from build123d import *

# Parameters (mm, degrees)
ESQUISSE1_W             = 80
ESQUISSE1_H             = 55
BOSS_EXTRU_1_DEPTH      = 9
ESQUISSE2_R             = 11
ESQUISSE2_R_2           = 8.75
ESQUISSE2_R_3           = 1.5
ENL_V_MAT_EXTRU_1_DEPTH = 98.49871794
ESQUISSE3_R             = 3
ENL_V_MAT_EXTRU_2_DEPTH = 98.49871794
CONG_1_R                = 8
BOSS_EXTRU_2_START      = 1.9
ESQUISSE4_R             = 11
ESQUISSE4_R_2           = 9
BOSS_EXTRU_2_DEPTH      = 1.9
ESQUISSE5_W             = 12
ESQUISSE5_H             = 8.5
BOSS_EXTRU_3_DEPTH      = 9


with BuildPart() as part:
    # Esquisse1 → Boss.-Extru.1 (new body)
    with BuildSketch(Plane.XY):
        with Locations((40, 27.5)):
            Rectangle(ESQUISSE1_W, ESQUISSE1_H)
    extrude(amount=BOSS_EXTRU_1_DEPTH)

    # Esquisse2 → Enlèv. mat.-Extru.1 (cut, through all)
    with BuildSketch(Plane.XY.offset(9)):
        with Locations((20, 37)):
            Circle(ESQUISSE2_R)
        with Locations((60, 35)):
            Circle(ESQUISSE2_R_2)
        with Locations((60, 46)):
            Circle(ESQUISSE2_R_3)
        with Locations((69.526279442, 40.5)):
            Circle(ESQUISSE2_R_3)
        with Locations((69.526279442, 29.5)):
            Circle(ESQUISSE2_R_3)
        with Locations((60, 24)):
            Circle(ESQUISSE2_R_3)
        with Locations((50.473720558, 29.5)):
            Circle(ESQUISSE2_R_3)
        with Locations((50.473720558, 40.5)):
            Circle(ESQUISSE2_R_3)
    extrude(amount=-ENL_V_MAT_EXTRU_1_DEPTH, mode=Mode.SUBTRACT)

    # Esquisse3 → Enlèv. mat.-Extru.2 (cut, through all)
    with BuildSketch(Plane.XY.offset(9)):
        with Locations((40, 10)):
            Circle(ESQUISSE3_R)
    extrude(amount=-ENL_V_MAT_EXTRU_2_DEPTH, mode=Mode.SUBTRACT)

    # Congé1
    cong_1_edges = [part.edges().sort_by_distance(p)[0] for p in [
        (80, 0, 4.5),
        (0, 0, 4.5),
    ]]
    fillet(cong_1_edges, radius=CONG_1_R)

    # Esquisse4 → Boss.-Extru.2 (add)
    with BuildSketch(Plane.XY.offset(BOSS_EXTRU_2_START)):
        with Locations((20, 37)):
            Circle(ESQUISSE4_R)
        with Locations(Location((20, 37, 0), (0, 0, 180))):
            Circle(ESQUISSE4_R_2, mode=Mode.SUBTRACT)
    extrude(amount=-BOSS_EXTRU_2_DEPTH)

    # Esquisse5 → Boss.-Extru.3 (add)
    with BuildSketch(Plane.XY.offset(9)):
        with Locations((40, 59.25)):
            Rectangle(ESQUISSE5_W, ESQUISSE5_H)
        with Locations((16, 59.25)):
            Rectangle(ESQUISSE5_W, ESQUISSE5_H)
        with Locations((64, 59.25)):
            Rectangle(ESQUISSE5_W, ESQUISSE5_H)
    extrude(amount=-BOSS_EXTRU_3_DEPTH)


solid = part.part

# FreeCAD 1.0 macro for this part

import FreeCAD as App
import Part
import Sketcher
from FreeCAD import Vector


def edges_at(feature, points):
    """Names of the edges that pass closest to the given points."""
    edges = feature.Shape.Edges
    near = lambda p: min(range(len(edges)), key=lambda i: edges[i].distToShape(Part.Vertex(*p))[0])
    return sorted({f"Edge{near(p) + 1}" for p in points})

doc = App.newDocument("Part")
body = doc.addObject("PartDesign::Body", "Body")

# Sketch on XY plane
sketch1 = body.newObject("Sketcher::SketchObject", "Sketch")
sketch1.AttachmentSupport = (doc.getObject("XY_Plane"), [""])
sketch1.MapMode = "FlatFace"
sketch1.addGeometry(Part.LineSegment(Vector(0, 55, 0), Vector(0, 0, 0)), False)
sketch1.addGeometry(Part.LineSegment(Vector(0, 0, 0), Vector(80, 0, 0)), False)
sketch1.addGeometry(Part.LineSegment(Vector(80, 0, 0), Vector(80, 55, 0)), False)
sketch1.addGeometry(Part.LineSegment(Vector(80, 55, 0), Vector(0, 55, 0)), False)
sketch1.addConstraint(Sketcher.Constraint("Coincident", 0, 2, 1, 1))
sketch1.addConstraint(Sketcher.Constraint("Coincident", 1, 2, 2, 1))
sketch1.addConstraint(Sketcher.Constraint("Coincident", 2, 2, 3, 1))
sketch1.addConstraint(Sketcher.Constraint("Coincident", 3, 2, 0, 1))
sketch1.addConstraint(Sketcher.Constraint("Vertical", 0))
sketch1.addConstraint(Sketcher.Constraint("Horizontal", 1))
sketch1.addConstraint(Sketcher.Constraint("Vertical", 2))
sketch1.addConstraint(Sketcher.Constraint("Horizontal", 3))
sketch1.addConstraint(Sketcher.Constraint("Coincident", 0, 2, -1, 1))
sketch1.addConstraint(Sketcher.Constraint("DistanceX", 1, 1, 1, 2, 80.0))
sketch1.addConstraint(Sketcher.Constraint("DistanceY", 0, 2, 0, 1, 55.0))
pad1 = body.newObject("PartDesign::Pad", "Pad")
pad1.Profile = sketch1
pad1.Length = 9

# Sketch on XY plane
sketch2 = body.newObject("Sketcher::SketchObject", "Sketch001")
sketch2.AttachmentSupport = (doc.getObject("XY_Plane"), [""])
sketch2.MapMode = "FlatFace"
sketch2.AttachmentOffset = App.Placement(Vector(0, 0, 9), App.Rotation())
sketch2.addGeometry(Part.Circle(Vector(20, 37, 0), Vector(0, 0, 1), 11), False)
sketch2.addGeometry(Part.Circle(Vector(60, 35, 0), Vector(0, 0, 1), 8.8), False)
sketch2.addGeometry(Part.Circle(Vector(60, 46, 0), Vector(0, 0, 1), 1.5), False)
sketch2.addGeometry(Part.Circle(Vector(69.5, 40.5, 0), Vector(0, 0, 1), 1.5), False)
sketch2.addGeometry(Part.Circle(Vector(69.5, 29.5, 0), Vector(0, 0, 1), 1.5), False)
sketch2.addGeometry(Part.Circle(Vector(60, 24, 0), Vector(0, 0, 1), 1.5), False)
sketch2.addGeometry(Part.Circle(Vector(50.5, 29.5, 0), Vector(0, 0, 1), 1.5), False)
sketch2.addGeometry(Part.Circle(Vector(50.5, 40.5, 0), Vector(0, 0, 1), 1.5), False)
sketch2.addConstraint(Sketcher.Constraint("Equal", 2, 3))
sketch2.addConstraint(Sketcher.Constraint("Equal", 3, 4))
sketch2.addConstraint(Sketcher.Constraint("Equal", 4, 5))
sketch2.addConstraint(Sketcher.Constraint("Equal", 5, 6))
sketch2.addConstraint(Sketcher.Constraint("Equal", 6, 7))
sketch2.addConstraint(Sketcher.Constraint("Horizontal", 4, 3, 6, 3))
sketch2.addConstraint(Sketcher.Constraint("Horizontal", 3, 3, 7, 3))
sketch2.addConstraint(Sketcher.Constraint("Vertical", 1, 3, 2, 3))
sketch2.addConstraint(Sketcher.Constraint("Vertical", 3, 3, 4, 3))
sketch2.addConstraint(Sketcher.Constraint("Vertical", 2, 3, 5, 3))
sketch2.addConstraint(Sketcher.Constraint("Vertical", 6, 3, 7, 3))
sketch2.addConstraint(Sketcher.Constraint("Diameter", 0, 22.0))
sketch2.addConstraint(Sketcher.Constraint("Diameter", 2, 3.0))
sketch2.addConstraint(Sketcher.Constraint("Diameter", 1, 17.5))
sketch2.addConstraint(Sketcher.Constraint("DistanceX", -1, 1, 0, 3, 20.0))
sketch2.addConstraint(Sketcher.Constraint("DistanceY", -1, 1, 0, 3, 37.0))
sketch2.addConstraint(Sketcher.Constraint("DistanceX", -1, 1, 1, 3, 60.0))
sketch2.addConstraint(Sketcher.Constraint("DistanceY", -1, 1, 1, 3, 35.0))
sketch2.addConstraint(Sketcher.Constraint("DistanceY", -1, 1, 2, 3, 46.0))
sketch2.addConstraint(Sketcher.Constraint("DistanceY", -1, 1, 5, 3, 24.0))
sketch2.addConstraint(Sketcher.Constraint("DistanceY", 4, 3, 3, 3, 11.0))
sketch2.addConstraint(Sketcher.Constraint("DistanceY", -1, 1, 3, 3, 40.5))
sketch2.addConstraint(Sketcher.Constraint("DistanceX", -1, 1, 3, 3, 69.526279))
sketch2.addConstraint(Sketcher.Constraint("DistanceX", -1, 1, 6, 3, 50.473721))
pocket1 = body.newObject("PartDesign::Pocket", "Pocket")
pocket1.Profile = sketch2
pocket1.Type = "ThroughAll"

# Sketch on XY plane
sketch3 = body.newObject("Sketcher::SketchObject", "Sketch002")
sketch3.AttachmentSupport = (doc.getObject("XY_Plane"), [""])
sketch3.MapMode = "FlatFace"
sketch3.AttachmentOffset = App.Placement(Vector(0, 0, 9), App.Rotation())
sketch3.addGeometry(Part.Circle(Vector(40, 10, 0), Vector(0, 0, 1), 3), False)
sketch3.addConstraint(Sketcher.Constraint("Diameter", 0, 6.0))
sketch3.addConstraint(Sketcher.Constraint("DistanceX", -1, 1, 0, 3, 40.0))
sketch3.addConstraint(Sketcher.Constraint("DistanceY", -1, 1, 0, 3, 10.0))
pocket2 = body.newObject("PartDesign::Pocket", "Pocket001")
pocket2.Profile = sketch3
pocket2.Type = "ThroughAll"
doc.recompute()

fillet = body.newObject("PartDesign::Fillet", "Fillet")
fillet.Base = (pocket2, edges_at(pocket2, [(80, 0, 4.5), (0, 0, 4.5)]))
fillet.Radius = 8

# Sketch on XY plane
sketch4 = body.newObject("Sketcher::SketchObject", "Sketch003")
sketch4.AttachmentSupport = (doc.getObject("XY_Plane"), [""])
sketch4.MapMode = "FlatFace"
sketch4.AttachmentOffset = App.Placement(Vector(0, 0, 1.9), App.Rotation())
sketch4.addGeometry(Part.Circle(Vector(20, 37, 0), Vector(0, 0, 1), 11), False)
sketch4.addGeometry(Part.Circle(Vector(20, 37, 0), Vector(0, 0, 1), 9), False)
sketch4.addConstraint(Sketcher.Constraint("Coincident", 1, 3, 0, 3))
sketch4.addConstraint(Sketcher.Constraint("Diameter", 0, 22.0))
sketch4.addConstraint(Sketcher.Constraint("Diameter", 1, 18.0))
sketch4.addConstraint(Sketcher.Constraint("DistanceX", -1, 1, 0, 3, 20.0))
sketch4.addConstraint(Sketcher.Constraint("DistanceY", -1, 1, 0, 3, 37.0))
pad2 = body.newObject("PartDesign::Pad", "Pad001")
pad2.Profile = sketch4
pad2.Length = 1.9
pad2.Reversed = True

# Sketch on XY plane
sketch5 = body.newObject("Sketcher::SketchObject", "Sketch004")
sketch5.AttachmentSupport = (doc.getObject("XY_Plane"), [""])
sketch5.MapMode = "FlatFace"
sketch5.AttachmentOffset = App.Placement(Vector(0, 0, 9), App.Rotation())
sketch5.addGeometry(Part.LineSegment(Vector(34, 64, 0), Vector(34, 55, 0)), False)
sketch5.addGeometry(Part.LineSegment(Vector(34, 55, 0), Vector(46, 55, 0)), False)
sketch5.addGeometry(Part.LineSegment(Vector(46, 55, 0), Vector(46, 64, 0)), False)
sketch5.addGeometry(Part.LineSegment(Vector(46, 64, 0), Vector(34, 64, 0)), False)
sketch5.addGeometry(Part.LineSegment(Vector(10, 64, 0), Vector(10, 55, 0)), False)
sketch5.addGeometry(Part.LineSegment(Vector(10, 55, 0), Vector(22, 55, 0)), False)
sketch5.addGeometry(Part.LineSegment(Vector(22, 55, 0), Vector(22, 64, 0)), False)
sketch5.addGeometry(Part.LineSegment(Vector(22, 64, 0), Vector(10, 64, 0)), False)
sketch5.addGeometry(Part.LineSegment(Vector(58, 64, 0), Vector(58, 55, 0)), False)
sketch5.addGeometry(Part.LineSegment(Vector(58, 55, 0), Vector(70, 55, 0)), False)
sketch5.addGeometry(Part.LineSegment(Vector(70, 55, 0), Vector(70, 64, 0)), False)
sketch5.addGeometry(Part.LineSegment(Vector(70, 64, 0), Vector(58, 64, 0)), False)
sketch5.addConstraint(Sketcher.Constraint("Coincident", 0, 2, 1, 1))
sketch5.addConstraint(Sketcher.Constraint("Coincident", 1, 2, 2, 1))
sketch5.addConstraint(Sketcher.Constraint("Coincident", 2, 2, 3, 1))
sketch5.addConstraint(Sketcher.Constraint("Coincident", 3, 2, 0, 1))
sketch5.addConstraint(Sketcher.Constraint("Coincident", 4, 2, 5, 1))
sketch5.addConstraint(Sketcher.Constraint("Coincident", 5, 2, 6, 1))
sketch5.addConstraint(Sketcher.Constraint("Coincident", 6, 2, 7, 1))
sketch5.addConstraint(Sketcher.Constraint("Coincident", 7, 2, 4, 1))
sketch5.addConstraint(Sketcher.Constraint("Coincident", 8, 2, 9, 1))
sketch5.addConstraint(Sketcher.Constraint("Coincident", 9, 2, 10, 1))
sketch5.addConstraint(Sketcher.Constraint("Coincident", 10, 2, 11, 1))
sketch5.addConstraint(Sketcher.Constraint("Coincident", 11, 2, 8, 1))
sketch5.addConstraint(Sketcher.Constraint("Vertical", 0))
sketch5.addConstraint(Sketcher.Constraint("Horizontal", 1))
sketch5.addConstraint(Sketcher.Constraint("Vertical", 2))
sketch5.addConstraint(Sketcher.Constraint("Horizontal", 3))
sketch5.addConstraint(Sketcher.Constraint("Vertical", 4))
sketch5.addConstraint(Sketcher.Constraint("Horizontal", 5))
sketch5.addConstraint(Sketcher.Constraint("Vertical", 6))
sketch5.addConstraint(Sketcher.Constraint("Horizontal", 7))
sketch5.addConstraint(Sketcher.Constraint("Vertical", 8))
sketch5.addConstraint(Sketcher.Constraint("Horizontal", 9))
sketch5.addConstraint(Sketcher.Constraint("Vertical", 10))
sketch5.addConstraint(Sketcher.Constraint("Horizontal", 11))
sketch5.addConstraint(Sketcher.Constraint("Horizontal", 1, 2, 4, 2))
sketch5.addConstraint(Sketcher.Constraint("Horizontal", 3, 2, 6, 2))
sketch5.addConstraint(Sketcher.Constraint("Horizontal", 5, 2, 8, 2))
sketch5.addConstraint(Sketcher.Constraint("Horizontal", 7, 2, 10, 2))
sketch5.addConstraint(Sketcher.Constraint("Equal", 3, 5))
sketch5.addConstraint(Sketcher.Constraint("Equal", 7, 9))
sketch5.addConstraint(Sketcher.Constraint("DistanceX", 1, 1, 1, 2, 12.0))
sketch5.addConstraint(Sketcher.Constraint("DistanceY", 0, 2, 0, 1, 8.5))
sketch5.addConstraint(Sketcher.Constraint("DistanceX", -1, 1, 0, 2, 34.0))
sketch5.addConstraint(Sketcher.Constraint("DistanceY", -1, 1, 0, 2, 55.0))
sketch5.addConstraint(Sketcher.Constraint("DistanceX", -1, 1, 4, 2, 10.0))
sketch5.addConstraint(Sketcher.Constraint("DistanceX", -1, 1, 8, 2, 58.0))
pad3 = body.newObject("PartDesign::Pad", "Pad002")
pad3.Profile = sketch5
pad3.Length = 9
pad3.Reversed = True

doc.recompute()
